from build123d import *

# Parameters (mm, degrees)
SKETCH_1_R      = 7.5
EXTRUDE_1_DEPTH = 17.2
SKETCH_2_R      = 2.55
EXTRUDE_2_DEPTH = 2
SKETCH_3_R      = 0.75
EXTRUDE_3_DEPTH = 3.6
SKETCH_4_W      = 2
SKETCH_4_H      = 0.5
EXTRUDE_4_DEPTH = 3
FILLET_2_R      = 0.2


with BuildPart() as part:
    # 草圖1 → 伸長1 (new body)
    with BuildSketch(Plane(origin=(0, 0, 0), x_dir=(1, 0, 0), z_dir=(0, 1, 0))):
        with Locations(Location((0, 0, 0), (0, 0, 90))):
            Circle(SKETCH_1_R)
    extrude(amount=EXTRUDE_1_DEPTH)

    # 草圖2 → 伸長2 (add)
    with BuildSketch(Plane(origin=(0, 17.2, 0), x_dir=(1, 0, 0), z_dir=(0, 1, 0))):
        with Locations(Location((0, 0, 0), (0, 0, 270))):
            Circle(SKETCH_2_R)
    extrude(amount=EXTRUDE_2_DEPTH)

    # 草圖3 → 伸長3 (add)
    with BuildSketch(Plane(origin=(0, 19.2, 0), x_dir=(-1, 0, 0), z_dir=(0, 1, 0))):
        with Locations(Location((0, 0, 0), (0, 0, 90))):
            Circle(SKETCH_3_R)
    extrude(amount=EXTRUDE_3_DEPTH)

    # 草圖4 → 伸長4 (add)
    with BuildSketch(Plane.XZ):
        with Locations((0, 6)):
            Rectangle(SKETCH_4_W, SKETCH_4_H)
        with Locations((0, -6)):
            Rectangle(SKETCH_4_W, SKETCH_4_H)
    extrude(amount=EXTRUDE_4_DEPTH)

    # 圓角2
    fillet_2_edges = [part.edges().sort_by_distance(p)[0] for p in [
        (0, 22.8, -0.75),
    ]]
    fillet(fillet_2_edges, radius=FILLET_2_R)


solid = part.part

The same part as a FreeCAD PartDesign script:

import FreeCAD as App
import Part
import Sketcher
from FreeCAD import Vector
Q = App.Units.Quantity


def edges_at(feature, points):
    """Names of the edges that pass closest to the given points."""
    edges = feature.Shape.Edges
    near = lambda p: min(range(len(edges)), key=lambda i: edges[i].distToShape(Part.Vertex(*p))[0])
    return sorted({f"Edge{near(p) + 1}" for p in points})


def add_polygon(sketch, points):
    """Adds a closed chain of lines whose ends are joined by coincident constraints."""
    first, n = sketch.GeometryCount, len(points)
    for a, b in zip(points, points[1:] + points[:1]):
        sketch.addGeometry(Part.LineSegment(App.Vector(*a, 0), App.Vector(*b, 0)), False)
    for i in range(n):
        sketch.addConstraint(Sketcher.Constraint("Coincident", first + i, 2, first + (i + 1) % n, 1))

doc = App.newDocument("Part")
body = doc.addObject("PartDesign::Body", "Body")

# Sketch on XZ plane
sketch1 = body.newObject("Sketcher::SketchObject", "Sketch")
sketch1.AttachmentSupport = (doc.getObject("XZ_Plane"), [""])
sketch1.MapMode = "FlatFace"
sketch1.addGeometry(Part.Circle(Vector(0, 0, 0), Vector(0, 0, 1), 8), False)
sketch1.addConstraint([
    Sketcher.Constraint("Coincident", 0, 3, -1, 1),
    Sketcher.Constraint("Diameter", 0, Q("15 mm")),
])
pad1 = body.newObject("PartDesign::Pad", "Pad")
pad1.Profile = sketch1
pad1.Length = 17.2
pad1.Reversed = True

# Sketch on XZ plane
sketch2 = body.newObject("Sketcher::SketchObject", "Sketch001")
sketch2.AttachmentSupport = (doc.getObject("XZ_Plane"), [""])
sketch2.MapMode = "FlatFace"
sketch2.AttachmentOffset = App.Placement(Vector(0, 0, -17.2), App.Rotation())
sketch2.addGeometry(Part.Circle(Vector(0, 0, 0), Vector(0, 0, 1), 2.5), False)
sketch2.addConstraint([
    Sketcher.Constraint("Coincident", 0, 3, -1, 1),
    Sketcher.Constraint("Diameter", 0, Q("5.1 mm")),
])
pad2 = body.newObject("PartDesign::Pad", "Pad001")
pad2.Profile = sketch2
pad2.Length = 2
pad2.Reversed = True

# Sketch on XZ plane
sketch3 = body.newObject("Sketcher::SketchObject", "Sketch002")
sketch3.AttachmentSupport = (doc.getObject("XZ_Plane"), [""])
sketch3.MapMode = "FlatFace"
sketch3.AttachmentOffset = App.Placement(Vector(0, 0, -19.2), App.Rotation())
sketch3.addGeometry(Part.Circle(Vector(0, 0, 0), Vector(0, 0, 1), 0.8), False)
sketch3.addConstraint([
    Sketcher.Constraint("Coincident", 0, 3, -1, 1),
    Sketcher.Constraint("Diameter", 0, Q("1.5 mm")),
])
pad3 = body.newObject("PartDesign::Pad", "Pad002")
pad3.Profile = sketch3
pad3.Length = 3.6
pad3.Reversed = True

# Sketch on XZ plane
sketch4 = body.newObject("Sketcher::SketchObject", "Sketch003")
sketch4.AttachmentSupport = (doc.getObject("XZ_Plane"), [""])
sketch4.MapMode = "FlatFace"
add_polygon(sketch4, [(-1, 6.2), (-1, 5.8), (1, 5.8), (1, 6.2)])  # lines 0-3
add_polygon(sketch4, [(-1, -5.8), (-1, -6.2), (1, -6.2), (1, -5.8)])  # lines 4-7
sketch4.addConstraint([
    Sketcher.Constraint("Vertical", 0),
    Sketcher.Constraint("Horizontal", 1),
    Sketcher.Constraint("Vertical", 2),
    Sketcher.Constraint("Horizontal", 3),
    Sketcher.Constraint("Vertical", 4),
    Sketcher.Constraint("Horizontal", 5),
    Sketcher.Constraint("Vertical", 6),
    Sketcher.Constraint("Horizontal", 7),
    Sketcher.Constraint("Symmetric", 2, 2, 4, 2, -1, 1),
    Sketcher.Constraint("Symmetric", 0, 2, 6, 2, -1, 1),
    Sketcher.Constraint("Vertical", 3, 2, 4, 2),
    Sketcher.Constraint("DistanceX", 1, 1, 1, 2, Q("2 mm")),
    Sketcher.Constraint("DistanceY", 0, 2, 0, 1, Q("0.5 mm")),
    Sketcher.Constraint("DistanceY", 4, 2, 0, 2, Q("12 mm")),
])
pad4 = body.newObject("PartDesign::Pad", "Pad003")
pad4.Profile = sketch4
pad4.Length = 3
doc.recompute()

fillet = body.newObject("PartDesign::Fillet", "Fillet")
fillet.Base = (pad4, edges_at(pad4, [(0, 22.8, -0.75)]))
fillet.Radius = 0.2

doc.recompute()
